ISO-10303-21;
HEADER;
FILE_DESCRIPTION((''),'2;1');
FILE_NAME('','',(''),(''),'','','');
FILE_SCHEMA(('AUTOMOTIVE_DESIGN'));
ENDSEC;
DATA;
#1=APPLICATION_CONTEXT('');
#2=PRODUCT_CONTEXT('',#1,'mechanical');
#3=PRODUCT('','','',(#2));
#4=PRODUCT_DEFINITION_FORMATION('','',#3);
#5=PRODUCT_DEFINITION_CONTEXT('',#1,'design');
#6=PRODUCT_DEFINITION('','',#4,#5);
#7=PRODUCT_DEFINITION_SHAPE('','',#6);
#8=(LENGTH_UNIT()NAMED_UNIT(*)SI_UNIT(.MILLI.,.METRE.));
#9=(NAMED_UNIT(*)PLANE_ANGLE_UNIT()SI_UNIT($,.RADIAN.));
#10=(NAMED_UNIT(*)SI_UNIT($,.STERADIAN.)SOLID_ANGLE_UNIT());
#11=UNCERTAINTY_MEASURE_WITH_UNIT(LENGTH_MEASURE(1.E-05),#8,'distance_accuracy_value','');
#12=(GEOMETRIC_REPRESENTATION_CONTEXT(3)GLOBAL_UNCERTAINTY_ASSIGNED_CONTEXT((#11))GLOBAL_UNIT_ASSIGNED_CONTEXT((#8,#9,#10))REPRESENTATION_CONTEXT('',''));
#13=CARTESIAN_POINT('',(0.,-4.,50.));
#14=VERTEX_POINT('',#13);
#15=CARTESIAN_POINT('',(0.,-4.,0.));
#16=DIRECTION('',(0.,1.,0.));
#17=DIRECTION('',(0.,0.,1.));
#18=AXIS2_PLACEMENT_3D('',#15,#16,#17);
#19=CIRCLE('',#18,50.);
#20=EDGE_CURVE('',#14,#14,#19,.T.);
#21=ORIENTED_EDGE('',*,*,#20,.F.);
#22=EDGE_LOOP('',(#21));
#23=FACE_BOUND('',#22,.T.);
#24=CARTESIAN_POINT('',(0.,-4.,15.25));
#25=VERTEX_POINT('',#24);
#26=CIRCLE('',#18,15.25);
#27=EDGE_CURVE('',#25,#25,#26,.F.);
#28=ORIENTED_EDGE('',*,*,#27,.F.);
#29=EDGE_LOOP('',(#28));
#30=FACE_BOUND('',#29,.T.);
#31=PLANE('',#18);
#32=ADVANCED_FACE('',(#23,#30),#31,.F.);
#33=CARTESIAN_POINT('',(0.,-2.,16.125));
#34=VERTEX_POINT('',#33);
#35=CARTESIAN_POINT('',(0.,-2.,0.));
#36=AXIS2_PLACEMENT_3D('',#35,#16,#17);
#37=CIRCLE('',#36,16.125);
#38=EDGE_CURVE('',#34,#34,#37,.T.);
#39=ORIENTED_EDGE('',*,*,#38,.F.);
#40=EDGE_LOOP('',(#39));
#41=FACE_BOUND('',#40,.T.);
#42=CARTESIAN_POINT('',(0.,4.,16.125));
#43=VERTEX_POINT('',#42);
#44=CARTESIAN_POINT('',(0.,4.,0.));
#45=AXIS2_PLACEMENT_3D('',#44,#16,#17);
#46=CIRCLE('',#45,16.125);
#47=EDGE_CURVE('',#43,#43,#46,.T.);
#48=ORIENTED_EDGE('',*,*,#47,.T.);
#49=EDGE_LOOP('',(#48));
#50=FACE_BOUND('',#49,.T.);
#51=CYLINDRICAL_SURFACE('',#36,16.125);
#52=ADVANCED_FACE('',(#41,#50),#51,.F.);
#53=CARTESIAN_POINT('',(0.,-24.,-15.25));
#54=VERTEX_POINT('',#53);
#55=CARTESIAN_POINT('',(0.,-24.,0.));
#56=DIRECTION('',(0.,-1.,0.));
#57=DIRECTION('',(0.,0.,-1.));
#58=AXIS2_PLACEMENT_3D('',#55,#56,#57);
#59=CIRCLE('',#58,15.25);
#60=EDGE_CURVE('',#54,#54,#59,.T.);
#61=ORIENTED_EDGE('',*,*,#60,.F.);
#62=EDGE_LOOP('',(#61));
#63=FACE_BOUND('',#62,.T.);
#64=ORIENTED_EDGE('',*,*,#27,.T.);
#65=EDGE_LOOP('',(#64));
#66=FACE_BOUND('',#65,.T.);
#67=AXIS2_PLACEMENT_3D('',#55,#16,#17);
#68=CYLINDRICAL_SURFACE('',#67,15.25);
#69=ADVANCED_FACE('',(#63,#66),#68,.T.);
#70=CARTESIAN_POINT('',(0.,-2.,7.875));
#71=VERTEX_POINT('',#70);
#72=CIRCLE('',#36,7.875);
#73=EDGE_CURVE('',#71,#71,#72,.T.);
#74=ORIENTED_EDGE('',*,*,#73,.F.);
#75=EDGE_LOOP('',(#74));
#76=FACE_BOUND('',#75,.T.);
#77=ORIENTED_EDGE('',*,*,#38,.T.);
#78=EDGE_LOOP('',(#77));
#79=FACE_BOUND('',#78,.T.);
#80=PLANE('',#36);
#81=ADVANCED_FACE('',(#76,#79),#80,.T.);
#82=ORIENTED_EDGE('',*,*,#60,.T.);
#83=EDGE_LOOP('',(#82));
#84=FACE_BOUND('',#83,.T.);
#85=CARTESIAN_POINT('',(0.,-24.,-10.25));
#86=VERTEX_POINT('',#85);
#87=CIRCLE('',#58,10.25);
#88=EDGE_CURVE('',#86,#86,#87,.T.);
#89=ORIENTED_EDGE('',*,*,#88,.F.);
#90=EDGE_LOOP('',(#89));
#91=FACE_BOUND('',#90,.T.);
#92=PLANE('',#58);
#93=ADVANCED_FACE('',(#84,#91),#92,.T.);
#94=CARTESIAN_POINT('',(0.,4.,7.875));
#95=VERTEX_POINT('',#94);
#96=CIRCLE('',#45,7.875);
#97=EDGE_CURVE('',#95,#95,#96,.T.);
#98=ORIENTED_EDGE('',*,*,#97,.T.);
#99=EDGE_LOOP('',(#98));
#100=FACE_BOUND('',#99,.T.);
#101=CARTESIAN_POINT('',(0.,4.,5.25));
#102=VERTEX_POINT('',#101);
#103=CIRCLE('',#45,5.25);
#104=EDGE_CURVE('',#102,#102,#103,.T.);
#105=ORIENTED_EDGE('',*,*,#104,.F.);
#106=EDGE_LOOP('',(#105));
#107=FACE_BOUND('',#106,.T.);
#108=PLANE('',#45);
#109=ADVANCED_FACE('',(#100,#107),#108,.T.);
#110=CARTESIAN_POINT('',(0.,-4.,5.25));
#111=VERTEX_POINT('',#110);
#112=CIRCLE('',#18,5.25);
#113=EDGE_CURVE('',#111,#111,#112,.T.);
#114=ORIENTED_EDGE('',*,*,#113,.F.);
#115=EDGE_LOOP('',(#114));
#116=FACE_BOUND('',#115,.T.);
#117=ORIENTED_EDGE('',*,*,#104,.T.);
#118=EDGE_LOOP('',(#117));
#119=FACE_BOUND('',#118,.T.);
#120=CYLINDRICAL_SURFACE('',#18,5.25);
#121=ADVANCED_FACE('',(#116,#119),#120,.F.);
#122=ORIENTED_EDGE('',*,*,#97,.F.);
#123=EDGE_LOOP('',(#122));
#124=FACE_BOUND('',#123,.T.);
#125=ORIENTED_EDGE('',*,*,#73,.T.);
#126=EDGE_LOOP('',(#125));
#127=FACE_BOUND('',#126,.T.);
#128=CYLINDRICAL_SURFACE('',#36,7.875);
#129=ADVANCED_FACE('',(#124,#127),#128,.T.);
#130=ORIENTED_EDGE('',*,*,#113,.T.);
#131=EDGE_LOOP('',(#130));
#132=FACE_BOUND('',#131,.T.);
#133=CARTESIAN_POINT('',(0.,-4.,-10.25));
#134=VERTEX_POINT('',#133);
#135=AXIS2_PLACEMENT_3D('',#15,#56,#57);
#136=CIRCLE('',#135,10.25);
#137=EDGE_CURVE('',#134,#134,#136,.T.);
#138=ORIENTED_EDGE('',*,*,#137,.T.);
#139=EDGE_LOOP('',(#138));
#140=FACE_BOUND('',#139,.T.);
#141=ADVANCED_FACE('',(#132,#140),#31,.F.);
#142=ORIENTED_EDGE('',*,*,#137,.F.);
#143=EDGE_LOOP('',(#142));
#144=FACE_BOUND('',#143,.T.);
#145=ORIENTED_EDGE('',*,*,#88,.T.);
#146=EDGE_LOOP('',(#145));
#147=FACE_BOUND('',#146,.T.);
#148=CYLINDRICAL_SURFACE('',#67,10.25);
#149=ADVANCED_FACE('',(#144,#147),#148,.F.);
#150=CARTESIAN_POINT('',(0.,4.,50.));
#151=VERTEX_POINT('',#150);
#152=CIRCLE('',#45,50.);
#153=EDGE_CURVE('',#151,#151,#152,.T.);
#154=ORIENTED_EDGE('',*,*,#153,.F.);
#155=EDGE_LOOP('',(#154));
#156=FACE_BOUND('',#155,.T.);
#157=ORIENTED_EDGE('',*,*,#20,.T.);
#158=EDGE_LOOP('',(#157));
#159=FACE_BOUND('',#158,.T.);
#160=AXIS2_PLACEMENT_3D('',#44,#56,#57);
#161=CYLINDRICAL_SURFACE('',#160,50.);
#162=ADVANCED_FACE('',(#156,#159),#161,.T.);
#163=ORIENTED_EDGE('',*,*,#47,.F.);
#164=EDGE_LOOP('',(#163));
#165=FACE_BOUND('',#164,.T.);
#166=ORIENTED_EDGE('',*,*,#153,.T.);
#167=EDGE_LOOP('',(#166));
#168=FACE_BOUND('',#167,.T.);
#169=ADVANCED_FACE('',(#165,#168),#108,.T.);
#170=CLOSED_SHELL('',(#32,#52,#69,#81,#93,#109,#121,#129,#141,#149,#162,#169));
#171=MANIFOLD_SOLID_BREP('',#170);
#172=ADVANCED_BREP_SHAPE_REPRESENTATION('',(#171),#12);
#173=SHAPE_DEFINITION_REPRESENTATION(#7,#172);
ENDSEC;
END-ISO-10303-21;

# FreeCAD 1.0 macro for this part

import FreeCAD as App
import Part
import Sketcher
from FreeCAD import Vector

doc = App.newDocument("Part")
body = doc.addObject("PartDesign::Body", "Body")

sketch1 = body.newObject("Sketcher::SketchObject", "Sketch")
sketch1.AttachmentSupport = (doc.getObject("XZ_Plane"), [""])
sketch1.MapMode = "FlatFace"
sketch1.addGeometry(Part.Circle(Vector(0, 0, 0), Vector(0, 0, 1), 50), False)
sketch1.addConstraint([
    Sketcher.Constraint("Coincident", 0, 3, -1, 1),
    Sketcher.Constraint("Diameter", 0, 100.0),
])
pad1 = body.newObject("PartDesign::Pad", "Pad")
pad1.Profile = sketch1
pad1.Length = 8
pad1.Midplane = True

sketch2 = body.newObject("Sketcher::SketchObject", "Sketch001")
sketch2.AttachmentSupport = (doc.getObject("XZ_Plane"), [""])
sketch2.MapMode = "FlatFace"
sketch2.AttachmentOffset = App.Placement(Vector(0, 0, -4), App.Rotation())
sketch2.addGeometry([
    Part.Circle(Vector(0, 0, 0), Vector(0, 0, 1), 16),
    Part.Circle(Vector(0, 0, 0), Vector(0, 0, 1), 8),
], False)
sketch2.addConstraint([
    Sketcher.Constraint("Coincident", 0, 3, -1, 1),
    Sketcher.Constraint("Coincident", 1, 3, -1, 1),
    Sketcher.Constraint("Diameter", 0, 32.25),
    Sketcher.Constraint("Diameter", 1, 15.75),
])
pocket1 = body.newObject("PartDesign::Pocket", "Pocket")
pocket1.Profile = sketch2
pocket1.Length = 6
pocket1.Reversed = True

sketch3 = body.newObject("Sketcher::SketchObject", "Sketch002")
sketch3.AttachmentSupport = (doc.getObject("XZ_Plane"), [""])
sketch3.MapMode = "FlatFace"
sketch3.AttachmentOffset = App.Placement(Vector(0, 0, -4), App.Rotation())
sketch3.addGeometry(Part.Circle(Vector(0, 0, 0), Vector(0, 0, 1), 5), False)
sketch3.addConstraint([
    Sketcher.Constraint("Coincident", 0, 3, -1, 1),
    Sketcher.Constraint("Diameter", 0, 10.5),
])
pocket2 = body.newObject("PartDesign::Pocket", "Pocket001")
pocket2.Profile = sketch3
pocket2.Type = "ThroughAll"
pocket2.Reversed = True

sketch4 = body.newObject("Sketcher::SketchObject", "Sketch003")
sketch4.AttachmentSupport = (doc.getObject("XZ_Plane"), [""])
sketch4.MapMode = "FlatFace"
sketch4.AttachmentOffset = App.Placement(Vector(0, 0, 4), App.Rotation())
sketch4.addGeometry([
    Part.Circle(Vector(0, 0, 0), Vector(0, 0, 1), 15),
    Part.Circle(Vector(0, 0, 0), Vector(0, 0, 1), 10),
], False)
sketch4.addConstraint([
    Sketcher.Constraint("Coincident", 0, 3, -1, 1),
    Sketcher.Constraint("Coincident", 1, 3, -1, 1),
    Sketcher.Constraint("Diameter", 0, 30.5),
    Sketcher.Constraint("Diameter", 1, 20.5),
])
pad2 = body.newObject("PartDesign::Pad", "Pad001")
pad2.Profile = sketch4
pad2.Length = 20

doc.recompute()
